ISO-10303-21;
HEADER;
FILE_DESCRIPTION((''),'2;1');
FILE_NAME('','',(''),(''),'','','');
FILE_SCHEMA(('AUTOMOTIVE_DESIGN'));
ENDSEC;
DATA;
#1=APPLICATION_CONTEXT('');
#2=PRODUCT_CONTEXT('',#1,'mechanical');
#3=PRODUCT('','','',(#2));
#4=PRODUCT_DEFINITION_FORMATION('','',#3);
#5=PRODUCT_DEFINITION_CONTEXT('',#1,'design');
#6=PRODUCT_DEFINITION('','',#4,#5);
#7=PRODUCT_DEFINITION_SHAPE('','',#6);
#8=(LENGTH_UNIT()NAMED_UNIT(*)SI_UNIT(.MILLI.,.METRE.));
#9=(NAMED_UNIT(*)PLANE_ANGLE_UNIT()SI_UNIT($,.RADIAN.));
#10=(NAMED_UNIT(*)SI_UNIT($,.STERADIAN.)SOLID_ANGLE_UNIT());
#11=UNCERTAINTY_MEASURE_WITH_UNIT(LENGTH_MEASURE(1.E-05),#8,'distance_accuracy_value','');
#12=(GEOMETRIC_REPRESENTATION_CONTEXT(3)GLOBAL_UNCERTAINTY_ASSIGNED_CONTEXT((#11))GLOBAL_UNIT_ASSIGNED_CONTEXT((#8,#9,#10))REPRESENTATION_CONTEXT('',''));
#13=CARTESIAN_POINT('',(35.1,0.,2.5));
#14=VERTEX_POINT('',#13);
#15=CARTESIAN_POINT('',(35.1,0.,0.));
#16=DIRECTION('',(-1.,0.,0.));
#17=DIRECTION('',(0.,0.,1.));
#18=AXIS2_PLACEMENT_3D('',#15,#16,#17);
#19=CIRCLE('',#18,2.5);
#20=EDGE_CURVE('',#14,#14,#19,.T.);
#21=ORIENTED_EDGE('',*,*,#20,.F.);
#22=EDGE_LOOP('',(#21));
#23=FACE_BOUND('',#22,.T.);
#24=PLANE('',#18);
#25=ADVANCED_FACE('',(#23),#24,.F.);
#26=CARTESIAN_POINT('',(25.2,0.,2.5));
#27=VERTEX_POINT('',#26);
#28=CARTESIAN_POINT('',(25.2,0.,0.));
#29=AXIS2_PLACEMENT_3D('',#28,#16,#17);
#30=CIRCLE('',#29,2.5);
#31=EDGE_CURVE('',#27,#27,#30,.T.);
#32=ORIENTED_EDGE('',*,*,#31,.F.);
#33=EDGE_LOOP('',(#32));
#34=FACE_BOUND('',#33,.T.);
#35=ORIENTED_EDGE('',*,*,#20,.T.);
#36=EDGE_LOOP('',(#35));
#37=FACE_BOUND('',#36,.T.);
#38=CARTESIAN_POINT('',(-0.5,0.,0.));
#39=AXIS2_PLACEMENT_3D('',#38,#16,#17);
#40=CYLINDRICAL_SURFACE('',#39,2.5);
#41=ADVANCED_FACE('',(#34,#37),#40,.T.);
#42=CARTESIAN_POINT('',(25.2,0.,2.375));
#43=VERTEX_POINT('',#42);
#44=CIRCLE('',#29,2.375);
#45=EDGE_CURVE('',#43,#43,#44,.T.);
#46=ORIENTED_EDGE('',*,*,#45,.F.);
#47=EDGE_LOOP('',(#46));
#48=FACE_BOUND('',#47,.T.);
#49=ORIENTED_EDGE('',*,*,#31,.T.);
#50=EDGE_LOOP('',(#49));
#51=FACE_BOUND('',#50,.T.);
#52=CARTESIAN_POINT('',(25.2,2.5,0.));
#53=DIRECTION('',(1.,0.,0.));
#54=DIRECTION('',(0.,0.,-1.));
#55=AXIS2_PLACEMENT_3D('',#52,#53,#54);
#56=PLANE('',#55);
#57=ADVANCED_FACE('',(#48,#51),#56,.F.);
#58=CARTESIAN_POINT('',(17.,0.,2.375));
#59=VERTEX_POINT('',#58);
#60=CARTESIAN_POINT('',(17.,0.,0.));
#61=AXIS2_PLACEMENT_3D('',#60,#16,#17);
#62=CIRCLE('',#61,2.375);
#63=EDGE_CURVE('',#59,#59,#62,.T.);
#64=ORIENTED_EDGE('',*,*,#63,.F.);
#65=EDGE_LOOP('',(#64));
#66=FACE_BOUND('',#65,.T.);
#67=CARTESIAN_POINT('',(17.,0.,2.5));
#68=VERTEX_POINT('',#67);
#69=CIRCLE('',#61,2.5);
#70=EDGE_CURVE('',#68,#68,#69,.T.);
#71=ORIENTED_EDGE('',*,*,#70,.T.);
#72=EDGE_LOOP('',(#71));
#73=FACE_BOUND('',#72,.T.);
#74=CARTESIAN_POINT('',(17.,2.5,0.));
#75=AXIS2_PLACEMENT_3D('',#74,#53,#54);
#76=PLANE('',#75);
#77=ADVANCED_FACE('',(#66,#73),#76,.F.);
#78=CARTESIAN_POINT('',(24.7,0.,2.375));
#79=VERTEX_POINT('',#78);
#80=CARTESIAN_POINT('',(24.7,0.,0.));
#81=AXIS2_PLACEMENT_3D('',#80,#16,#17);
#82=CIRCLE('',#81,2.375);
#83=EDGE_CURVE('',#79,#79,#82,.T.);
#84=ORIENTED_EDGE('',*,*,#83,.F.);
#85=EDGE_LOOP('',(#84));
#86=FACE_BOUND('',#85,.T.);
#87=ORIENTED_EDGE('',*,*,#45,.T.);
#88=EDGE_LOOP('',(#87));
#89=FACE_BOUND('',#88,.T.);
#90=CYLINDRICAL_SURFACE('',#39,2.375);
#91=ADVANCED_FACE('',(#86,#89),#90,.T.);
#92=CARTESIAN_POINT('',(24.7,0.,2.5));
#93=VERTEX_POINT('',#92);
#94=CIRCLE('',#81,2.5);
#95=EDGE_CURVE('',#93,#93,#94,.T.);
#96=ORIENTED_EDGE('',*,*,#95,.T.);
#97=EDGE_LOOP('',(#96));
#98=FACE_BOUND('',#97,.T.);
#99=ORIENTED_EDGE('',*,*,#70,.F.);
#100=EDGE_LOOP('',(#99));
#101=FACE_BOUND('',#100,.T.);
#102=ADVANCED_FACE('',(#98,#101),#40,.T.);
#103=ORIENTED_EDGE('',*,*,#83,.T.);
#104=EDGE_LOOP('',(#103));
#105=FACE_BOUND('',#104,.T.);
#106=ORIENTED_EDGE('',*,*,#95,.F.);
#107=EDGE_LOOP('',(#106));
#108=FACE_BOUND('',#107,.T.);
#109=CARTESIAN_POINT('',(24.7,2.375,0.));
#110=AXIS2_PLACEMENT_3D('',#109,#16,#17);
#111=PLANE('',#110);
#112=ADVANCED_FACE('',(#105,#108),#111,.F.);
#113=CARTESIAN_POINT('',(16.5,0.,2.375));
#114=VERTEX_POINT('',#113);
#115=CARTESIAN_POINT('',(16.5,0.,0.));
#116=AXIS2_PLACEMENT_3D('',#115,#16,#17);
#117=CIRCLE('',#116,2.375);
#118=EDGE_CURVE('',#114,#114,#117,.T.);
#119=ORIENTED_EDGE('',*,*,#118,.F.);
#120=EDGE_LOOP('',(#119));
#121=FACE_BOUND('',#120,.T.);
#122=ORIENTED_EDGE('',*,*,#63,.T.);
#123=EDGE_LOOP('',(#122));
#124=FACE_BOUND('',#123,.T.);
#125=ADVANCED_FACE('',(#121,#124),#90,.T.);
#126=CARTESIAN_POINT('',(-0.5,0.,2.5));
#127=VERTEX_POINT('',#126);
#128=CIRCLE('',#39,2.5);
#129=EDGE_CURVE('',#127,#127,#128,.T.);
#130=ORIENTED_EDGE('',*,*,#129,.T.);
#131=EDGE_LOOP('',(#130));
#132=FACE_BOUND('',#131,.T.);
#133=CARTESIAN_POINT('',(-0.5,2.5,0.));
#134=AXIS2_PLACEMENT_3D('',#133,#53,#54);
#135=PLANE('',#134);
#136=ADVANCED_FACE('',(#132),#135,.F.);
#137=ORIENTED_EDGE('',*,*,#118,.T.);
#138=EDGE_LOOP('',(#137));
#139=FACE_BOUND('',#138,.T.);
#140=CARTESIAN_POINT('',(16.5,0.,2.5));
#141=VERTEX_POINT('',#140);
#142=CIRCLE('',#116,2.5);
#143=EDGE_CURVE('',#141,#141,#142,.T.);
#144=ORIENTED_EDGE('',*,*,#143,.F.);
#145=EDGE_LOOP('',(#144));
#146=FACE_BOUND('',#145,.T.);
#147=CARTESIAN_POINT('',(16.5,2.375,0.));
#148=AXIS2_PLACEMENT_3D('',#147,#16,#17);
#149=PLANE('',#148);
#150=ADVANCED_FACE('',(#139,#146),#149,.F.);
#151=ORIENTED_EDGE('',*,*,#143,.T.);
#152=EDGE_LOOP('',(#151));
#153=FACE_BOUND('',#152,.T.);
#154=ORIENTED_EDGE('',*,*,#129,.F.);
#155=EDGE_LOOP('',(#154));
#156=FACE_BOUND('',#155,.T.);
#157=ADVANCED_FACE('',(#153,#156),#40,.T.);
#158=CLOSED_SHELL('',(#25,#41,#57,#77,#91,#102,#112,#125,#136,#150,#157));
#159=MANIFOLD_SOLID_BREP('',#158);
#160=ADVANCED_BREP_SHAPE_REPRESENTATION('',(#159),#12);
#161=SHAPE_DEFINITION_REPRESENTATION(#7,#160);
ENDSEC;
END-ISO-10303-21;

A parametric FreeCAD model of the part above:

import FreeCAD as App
import Part
import Sketcher
from FreeCAD import Vector
Q = App.Units.Quantity

doc = App.newDocument("Part")
body = doc.addObject("PartDesign::Body", "Body")

# Sketch on XY plane
sketch1 = body.newObject("Sketcher::SketchObject", "Sketch")
sketch1.AttachmentSupport = (doc.getObject("XY_Plane"), [""])
sketch1.MapMode = "FlatFace"
sketch1.addGeometry(Part.LineSegment(Vector(-0.5, 2.5, 0), Vector(-0.5, 0, 0)), False)
sketch1.addGeometry(Part.LineSegment(Vector(-0.5, 0, 0), Vector(35.1, 0, 0)), False)
sketch1.addGeometry(Part.LineSegment(Vector(35.1, 0, 0), Vector(35.1, 2.5, 0)), False)
sketch1.addGeometry(Part.LineSegment(Vector(35.1, 2.5, 0), Vector(25.2, 2.5, 0)), False)
sketch1.addGeometry(Part.LineSegment(Vector(25.2, 2.5, 0), Vector(25.2, 2.375, 0)), False)
sketch1.addGeometry(Part.LineSegment(Vector(25.2, 2.375, 0), Vector(24.7, 2.375, 0)), False)
sketch1.addGeometry(Part.LineSegment(Vector(24.7, 2.375, 0), Vector(24.7, 2.5, 0)), False)
sketch1.addGeometry(Part.LineSegment(Vector(24.7, 2.5, 0), Vector(17, 2.5, 0)), False)
sketch1.addGeometry(Part.LineSegment(Vector(17, 2.5, 0), Vector(17, 2.375, 0)), False)
sketch1.addGeometry(Part.LineSegment(Vector(17, 2.375, 0), Vector(16.5, 2.375, 0)), False)
sketch1.addGeometry(Part.LineSegment(Vector(16.5, 2.375, 0), Vector(16.5, 2.5, 0)), False)
sketch1.addGeometry(Part.LineSegment(Vector(16.5, 2.5, 0), Vector(-0.5, 2.5, 0)), False)
sketch1.addConstraint(Sketcher.Constraint("Coincident", 0, 2, 1, 1))
sketch1.addConstraint(Sketcher.Constraint("Coincident", 1, 2, 2, 1))
sketch1.addConstraint(Sketcher.Constraint("Coincident", 2, 2, 3, 1))
sketch1.addConstraint(Sketcher.Constraint("Coincident", 3, 2, 4, 1))
sketch1.addConstraint(Sketcher.Constraint("Coincident", 4, 2, 5, 1))
sketch1.addConstraint(Sketcher.Constraint("Coincident", 5, 2, 6, 1))
sketch1.addConstraint(Sketcher.Constraint("Coincident", 6, 2, 7, 1))
sketch1.addConstraint(Sketcher.Constraint("Coincident", 7, 2, 8, 1))
sketch1.addConstraint(Sketcher.Constraint("Coincident", 8, 2, 9, 1))
sketch1.addConstraint(Sketcher.Constraint("Coincident", 9, 2, 10, 1))
sketch1.addConstraint(Sketcher.Constraint("Coincident", 10, 2, 11, 1))
sketch1.addConstraint(Sketcher.Constraint("Coincident", 11, 2, 0, 1))
sketch1.addConstraint(Sketcher.Constraint("Vertical", 0))
sketch1.addConstraint(Sketcher.Constraint("Horizontal", 1))
sketch1.addConstraint(Sketcher.Constraint("Vertical", 2))
sketch1.addConstraint(Sketcher.Constraint("Horizontal", 3))
sketch1.addConstraint(Sketcher.Constraint("Vertical", 4))
sketch1.addConstraint(Sketcher.Constraint("Horizontal", 5))
sketch1.addConstraint(Sketcher.Constraint("Vertical", 6))
sketch1.addConstraint(Sketcher.Constraint("Horizontal", 7))
sketch1.addConstraint(Sketcher.Constraint("Vertical", 8))
sketch1.addConstraint(Sketcher.Constraint("Horizontal", 9))
sketch1.addConstraint(Sketcher.Constraint("Vertical", 10))
sketch1.addConstraint(Sketcher.Constraint("Horizontal", 11))
sketch1.addConstraint(Sketcher.Constraint("PointOnObject", 0, 2, -1))
sketch1.addConstraint(Sketcher.Constraint("Horizontal", 3, 2, 6, 2))
sketch1.addConstraint(Sketcher.Constraint("Horizontal", 5, 2, 8, 2))
sketch1.addConstraint(Sketcher.Constraint("Horizontal", 7, 2, 10, 2))
sketch1.addConstraint(Sketcher.Constraint("Equal", 5, 9))
sketch1.addConstraint(Sketcher.Constraint("DistanceX", 11, 2, 11, 1, Q("17 mm")))
sketch1.addConstraint(Sketcher.Constraint("DistanceX", 1, 1, 1, 2, Q("35.6 mm")))
sketch1.addConstraint(Sketcher.Constraint("DistanceX", 3, 2, 3, 1, Q("9.9 mm")))
sketch1.addConstraint(Sketcher.Constraint("DistanceX", 5, 2, 5, 1, Q("0.5 mm")))
sketch1.addConstraint(Sketcher.Constraint("DistanceY", 0, 2, 0, 1, Q("2.5 mm")))
sketch1.addConstraint(Sketcher.Constraint("DistanceX", -1, 1, 7, 2, Q("17 mm")))
sketch1.addConstraint(Sketcher.Constraint("DistanceY", 4, 2, 4, 1, Q("0.125 mm")))
revolution = body.newObject("PartDesign::Revolution", "Revolution")
revolution.Profile = sketch1
revolution.ReferenceAxis = (sketch1, ["H_Axis"])
revolution.Angle = 360

doc.recompute()
